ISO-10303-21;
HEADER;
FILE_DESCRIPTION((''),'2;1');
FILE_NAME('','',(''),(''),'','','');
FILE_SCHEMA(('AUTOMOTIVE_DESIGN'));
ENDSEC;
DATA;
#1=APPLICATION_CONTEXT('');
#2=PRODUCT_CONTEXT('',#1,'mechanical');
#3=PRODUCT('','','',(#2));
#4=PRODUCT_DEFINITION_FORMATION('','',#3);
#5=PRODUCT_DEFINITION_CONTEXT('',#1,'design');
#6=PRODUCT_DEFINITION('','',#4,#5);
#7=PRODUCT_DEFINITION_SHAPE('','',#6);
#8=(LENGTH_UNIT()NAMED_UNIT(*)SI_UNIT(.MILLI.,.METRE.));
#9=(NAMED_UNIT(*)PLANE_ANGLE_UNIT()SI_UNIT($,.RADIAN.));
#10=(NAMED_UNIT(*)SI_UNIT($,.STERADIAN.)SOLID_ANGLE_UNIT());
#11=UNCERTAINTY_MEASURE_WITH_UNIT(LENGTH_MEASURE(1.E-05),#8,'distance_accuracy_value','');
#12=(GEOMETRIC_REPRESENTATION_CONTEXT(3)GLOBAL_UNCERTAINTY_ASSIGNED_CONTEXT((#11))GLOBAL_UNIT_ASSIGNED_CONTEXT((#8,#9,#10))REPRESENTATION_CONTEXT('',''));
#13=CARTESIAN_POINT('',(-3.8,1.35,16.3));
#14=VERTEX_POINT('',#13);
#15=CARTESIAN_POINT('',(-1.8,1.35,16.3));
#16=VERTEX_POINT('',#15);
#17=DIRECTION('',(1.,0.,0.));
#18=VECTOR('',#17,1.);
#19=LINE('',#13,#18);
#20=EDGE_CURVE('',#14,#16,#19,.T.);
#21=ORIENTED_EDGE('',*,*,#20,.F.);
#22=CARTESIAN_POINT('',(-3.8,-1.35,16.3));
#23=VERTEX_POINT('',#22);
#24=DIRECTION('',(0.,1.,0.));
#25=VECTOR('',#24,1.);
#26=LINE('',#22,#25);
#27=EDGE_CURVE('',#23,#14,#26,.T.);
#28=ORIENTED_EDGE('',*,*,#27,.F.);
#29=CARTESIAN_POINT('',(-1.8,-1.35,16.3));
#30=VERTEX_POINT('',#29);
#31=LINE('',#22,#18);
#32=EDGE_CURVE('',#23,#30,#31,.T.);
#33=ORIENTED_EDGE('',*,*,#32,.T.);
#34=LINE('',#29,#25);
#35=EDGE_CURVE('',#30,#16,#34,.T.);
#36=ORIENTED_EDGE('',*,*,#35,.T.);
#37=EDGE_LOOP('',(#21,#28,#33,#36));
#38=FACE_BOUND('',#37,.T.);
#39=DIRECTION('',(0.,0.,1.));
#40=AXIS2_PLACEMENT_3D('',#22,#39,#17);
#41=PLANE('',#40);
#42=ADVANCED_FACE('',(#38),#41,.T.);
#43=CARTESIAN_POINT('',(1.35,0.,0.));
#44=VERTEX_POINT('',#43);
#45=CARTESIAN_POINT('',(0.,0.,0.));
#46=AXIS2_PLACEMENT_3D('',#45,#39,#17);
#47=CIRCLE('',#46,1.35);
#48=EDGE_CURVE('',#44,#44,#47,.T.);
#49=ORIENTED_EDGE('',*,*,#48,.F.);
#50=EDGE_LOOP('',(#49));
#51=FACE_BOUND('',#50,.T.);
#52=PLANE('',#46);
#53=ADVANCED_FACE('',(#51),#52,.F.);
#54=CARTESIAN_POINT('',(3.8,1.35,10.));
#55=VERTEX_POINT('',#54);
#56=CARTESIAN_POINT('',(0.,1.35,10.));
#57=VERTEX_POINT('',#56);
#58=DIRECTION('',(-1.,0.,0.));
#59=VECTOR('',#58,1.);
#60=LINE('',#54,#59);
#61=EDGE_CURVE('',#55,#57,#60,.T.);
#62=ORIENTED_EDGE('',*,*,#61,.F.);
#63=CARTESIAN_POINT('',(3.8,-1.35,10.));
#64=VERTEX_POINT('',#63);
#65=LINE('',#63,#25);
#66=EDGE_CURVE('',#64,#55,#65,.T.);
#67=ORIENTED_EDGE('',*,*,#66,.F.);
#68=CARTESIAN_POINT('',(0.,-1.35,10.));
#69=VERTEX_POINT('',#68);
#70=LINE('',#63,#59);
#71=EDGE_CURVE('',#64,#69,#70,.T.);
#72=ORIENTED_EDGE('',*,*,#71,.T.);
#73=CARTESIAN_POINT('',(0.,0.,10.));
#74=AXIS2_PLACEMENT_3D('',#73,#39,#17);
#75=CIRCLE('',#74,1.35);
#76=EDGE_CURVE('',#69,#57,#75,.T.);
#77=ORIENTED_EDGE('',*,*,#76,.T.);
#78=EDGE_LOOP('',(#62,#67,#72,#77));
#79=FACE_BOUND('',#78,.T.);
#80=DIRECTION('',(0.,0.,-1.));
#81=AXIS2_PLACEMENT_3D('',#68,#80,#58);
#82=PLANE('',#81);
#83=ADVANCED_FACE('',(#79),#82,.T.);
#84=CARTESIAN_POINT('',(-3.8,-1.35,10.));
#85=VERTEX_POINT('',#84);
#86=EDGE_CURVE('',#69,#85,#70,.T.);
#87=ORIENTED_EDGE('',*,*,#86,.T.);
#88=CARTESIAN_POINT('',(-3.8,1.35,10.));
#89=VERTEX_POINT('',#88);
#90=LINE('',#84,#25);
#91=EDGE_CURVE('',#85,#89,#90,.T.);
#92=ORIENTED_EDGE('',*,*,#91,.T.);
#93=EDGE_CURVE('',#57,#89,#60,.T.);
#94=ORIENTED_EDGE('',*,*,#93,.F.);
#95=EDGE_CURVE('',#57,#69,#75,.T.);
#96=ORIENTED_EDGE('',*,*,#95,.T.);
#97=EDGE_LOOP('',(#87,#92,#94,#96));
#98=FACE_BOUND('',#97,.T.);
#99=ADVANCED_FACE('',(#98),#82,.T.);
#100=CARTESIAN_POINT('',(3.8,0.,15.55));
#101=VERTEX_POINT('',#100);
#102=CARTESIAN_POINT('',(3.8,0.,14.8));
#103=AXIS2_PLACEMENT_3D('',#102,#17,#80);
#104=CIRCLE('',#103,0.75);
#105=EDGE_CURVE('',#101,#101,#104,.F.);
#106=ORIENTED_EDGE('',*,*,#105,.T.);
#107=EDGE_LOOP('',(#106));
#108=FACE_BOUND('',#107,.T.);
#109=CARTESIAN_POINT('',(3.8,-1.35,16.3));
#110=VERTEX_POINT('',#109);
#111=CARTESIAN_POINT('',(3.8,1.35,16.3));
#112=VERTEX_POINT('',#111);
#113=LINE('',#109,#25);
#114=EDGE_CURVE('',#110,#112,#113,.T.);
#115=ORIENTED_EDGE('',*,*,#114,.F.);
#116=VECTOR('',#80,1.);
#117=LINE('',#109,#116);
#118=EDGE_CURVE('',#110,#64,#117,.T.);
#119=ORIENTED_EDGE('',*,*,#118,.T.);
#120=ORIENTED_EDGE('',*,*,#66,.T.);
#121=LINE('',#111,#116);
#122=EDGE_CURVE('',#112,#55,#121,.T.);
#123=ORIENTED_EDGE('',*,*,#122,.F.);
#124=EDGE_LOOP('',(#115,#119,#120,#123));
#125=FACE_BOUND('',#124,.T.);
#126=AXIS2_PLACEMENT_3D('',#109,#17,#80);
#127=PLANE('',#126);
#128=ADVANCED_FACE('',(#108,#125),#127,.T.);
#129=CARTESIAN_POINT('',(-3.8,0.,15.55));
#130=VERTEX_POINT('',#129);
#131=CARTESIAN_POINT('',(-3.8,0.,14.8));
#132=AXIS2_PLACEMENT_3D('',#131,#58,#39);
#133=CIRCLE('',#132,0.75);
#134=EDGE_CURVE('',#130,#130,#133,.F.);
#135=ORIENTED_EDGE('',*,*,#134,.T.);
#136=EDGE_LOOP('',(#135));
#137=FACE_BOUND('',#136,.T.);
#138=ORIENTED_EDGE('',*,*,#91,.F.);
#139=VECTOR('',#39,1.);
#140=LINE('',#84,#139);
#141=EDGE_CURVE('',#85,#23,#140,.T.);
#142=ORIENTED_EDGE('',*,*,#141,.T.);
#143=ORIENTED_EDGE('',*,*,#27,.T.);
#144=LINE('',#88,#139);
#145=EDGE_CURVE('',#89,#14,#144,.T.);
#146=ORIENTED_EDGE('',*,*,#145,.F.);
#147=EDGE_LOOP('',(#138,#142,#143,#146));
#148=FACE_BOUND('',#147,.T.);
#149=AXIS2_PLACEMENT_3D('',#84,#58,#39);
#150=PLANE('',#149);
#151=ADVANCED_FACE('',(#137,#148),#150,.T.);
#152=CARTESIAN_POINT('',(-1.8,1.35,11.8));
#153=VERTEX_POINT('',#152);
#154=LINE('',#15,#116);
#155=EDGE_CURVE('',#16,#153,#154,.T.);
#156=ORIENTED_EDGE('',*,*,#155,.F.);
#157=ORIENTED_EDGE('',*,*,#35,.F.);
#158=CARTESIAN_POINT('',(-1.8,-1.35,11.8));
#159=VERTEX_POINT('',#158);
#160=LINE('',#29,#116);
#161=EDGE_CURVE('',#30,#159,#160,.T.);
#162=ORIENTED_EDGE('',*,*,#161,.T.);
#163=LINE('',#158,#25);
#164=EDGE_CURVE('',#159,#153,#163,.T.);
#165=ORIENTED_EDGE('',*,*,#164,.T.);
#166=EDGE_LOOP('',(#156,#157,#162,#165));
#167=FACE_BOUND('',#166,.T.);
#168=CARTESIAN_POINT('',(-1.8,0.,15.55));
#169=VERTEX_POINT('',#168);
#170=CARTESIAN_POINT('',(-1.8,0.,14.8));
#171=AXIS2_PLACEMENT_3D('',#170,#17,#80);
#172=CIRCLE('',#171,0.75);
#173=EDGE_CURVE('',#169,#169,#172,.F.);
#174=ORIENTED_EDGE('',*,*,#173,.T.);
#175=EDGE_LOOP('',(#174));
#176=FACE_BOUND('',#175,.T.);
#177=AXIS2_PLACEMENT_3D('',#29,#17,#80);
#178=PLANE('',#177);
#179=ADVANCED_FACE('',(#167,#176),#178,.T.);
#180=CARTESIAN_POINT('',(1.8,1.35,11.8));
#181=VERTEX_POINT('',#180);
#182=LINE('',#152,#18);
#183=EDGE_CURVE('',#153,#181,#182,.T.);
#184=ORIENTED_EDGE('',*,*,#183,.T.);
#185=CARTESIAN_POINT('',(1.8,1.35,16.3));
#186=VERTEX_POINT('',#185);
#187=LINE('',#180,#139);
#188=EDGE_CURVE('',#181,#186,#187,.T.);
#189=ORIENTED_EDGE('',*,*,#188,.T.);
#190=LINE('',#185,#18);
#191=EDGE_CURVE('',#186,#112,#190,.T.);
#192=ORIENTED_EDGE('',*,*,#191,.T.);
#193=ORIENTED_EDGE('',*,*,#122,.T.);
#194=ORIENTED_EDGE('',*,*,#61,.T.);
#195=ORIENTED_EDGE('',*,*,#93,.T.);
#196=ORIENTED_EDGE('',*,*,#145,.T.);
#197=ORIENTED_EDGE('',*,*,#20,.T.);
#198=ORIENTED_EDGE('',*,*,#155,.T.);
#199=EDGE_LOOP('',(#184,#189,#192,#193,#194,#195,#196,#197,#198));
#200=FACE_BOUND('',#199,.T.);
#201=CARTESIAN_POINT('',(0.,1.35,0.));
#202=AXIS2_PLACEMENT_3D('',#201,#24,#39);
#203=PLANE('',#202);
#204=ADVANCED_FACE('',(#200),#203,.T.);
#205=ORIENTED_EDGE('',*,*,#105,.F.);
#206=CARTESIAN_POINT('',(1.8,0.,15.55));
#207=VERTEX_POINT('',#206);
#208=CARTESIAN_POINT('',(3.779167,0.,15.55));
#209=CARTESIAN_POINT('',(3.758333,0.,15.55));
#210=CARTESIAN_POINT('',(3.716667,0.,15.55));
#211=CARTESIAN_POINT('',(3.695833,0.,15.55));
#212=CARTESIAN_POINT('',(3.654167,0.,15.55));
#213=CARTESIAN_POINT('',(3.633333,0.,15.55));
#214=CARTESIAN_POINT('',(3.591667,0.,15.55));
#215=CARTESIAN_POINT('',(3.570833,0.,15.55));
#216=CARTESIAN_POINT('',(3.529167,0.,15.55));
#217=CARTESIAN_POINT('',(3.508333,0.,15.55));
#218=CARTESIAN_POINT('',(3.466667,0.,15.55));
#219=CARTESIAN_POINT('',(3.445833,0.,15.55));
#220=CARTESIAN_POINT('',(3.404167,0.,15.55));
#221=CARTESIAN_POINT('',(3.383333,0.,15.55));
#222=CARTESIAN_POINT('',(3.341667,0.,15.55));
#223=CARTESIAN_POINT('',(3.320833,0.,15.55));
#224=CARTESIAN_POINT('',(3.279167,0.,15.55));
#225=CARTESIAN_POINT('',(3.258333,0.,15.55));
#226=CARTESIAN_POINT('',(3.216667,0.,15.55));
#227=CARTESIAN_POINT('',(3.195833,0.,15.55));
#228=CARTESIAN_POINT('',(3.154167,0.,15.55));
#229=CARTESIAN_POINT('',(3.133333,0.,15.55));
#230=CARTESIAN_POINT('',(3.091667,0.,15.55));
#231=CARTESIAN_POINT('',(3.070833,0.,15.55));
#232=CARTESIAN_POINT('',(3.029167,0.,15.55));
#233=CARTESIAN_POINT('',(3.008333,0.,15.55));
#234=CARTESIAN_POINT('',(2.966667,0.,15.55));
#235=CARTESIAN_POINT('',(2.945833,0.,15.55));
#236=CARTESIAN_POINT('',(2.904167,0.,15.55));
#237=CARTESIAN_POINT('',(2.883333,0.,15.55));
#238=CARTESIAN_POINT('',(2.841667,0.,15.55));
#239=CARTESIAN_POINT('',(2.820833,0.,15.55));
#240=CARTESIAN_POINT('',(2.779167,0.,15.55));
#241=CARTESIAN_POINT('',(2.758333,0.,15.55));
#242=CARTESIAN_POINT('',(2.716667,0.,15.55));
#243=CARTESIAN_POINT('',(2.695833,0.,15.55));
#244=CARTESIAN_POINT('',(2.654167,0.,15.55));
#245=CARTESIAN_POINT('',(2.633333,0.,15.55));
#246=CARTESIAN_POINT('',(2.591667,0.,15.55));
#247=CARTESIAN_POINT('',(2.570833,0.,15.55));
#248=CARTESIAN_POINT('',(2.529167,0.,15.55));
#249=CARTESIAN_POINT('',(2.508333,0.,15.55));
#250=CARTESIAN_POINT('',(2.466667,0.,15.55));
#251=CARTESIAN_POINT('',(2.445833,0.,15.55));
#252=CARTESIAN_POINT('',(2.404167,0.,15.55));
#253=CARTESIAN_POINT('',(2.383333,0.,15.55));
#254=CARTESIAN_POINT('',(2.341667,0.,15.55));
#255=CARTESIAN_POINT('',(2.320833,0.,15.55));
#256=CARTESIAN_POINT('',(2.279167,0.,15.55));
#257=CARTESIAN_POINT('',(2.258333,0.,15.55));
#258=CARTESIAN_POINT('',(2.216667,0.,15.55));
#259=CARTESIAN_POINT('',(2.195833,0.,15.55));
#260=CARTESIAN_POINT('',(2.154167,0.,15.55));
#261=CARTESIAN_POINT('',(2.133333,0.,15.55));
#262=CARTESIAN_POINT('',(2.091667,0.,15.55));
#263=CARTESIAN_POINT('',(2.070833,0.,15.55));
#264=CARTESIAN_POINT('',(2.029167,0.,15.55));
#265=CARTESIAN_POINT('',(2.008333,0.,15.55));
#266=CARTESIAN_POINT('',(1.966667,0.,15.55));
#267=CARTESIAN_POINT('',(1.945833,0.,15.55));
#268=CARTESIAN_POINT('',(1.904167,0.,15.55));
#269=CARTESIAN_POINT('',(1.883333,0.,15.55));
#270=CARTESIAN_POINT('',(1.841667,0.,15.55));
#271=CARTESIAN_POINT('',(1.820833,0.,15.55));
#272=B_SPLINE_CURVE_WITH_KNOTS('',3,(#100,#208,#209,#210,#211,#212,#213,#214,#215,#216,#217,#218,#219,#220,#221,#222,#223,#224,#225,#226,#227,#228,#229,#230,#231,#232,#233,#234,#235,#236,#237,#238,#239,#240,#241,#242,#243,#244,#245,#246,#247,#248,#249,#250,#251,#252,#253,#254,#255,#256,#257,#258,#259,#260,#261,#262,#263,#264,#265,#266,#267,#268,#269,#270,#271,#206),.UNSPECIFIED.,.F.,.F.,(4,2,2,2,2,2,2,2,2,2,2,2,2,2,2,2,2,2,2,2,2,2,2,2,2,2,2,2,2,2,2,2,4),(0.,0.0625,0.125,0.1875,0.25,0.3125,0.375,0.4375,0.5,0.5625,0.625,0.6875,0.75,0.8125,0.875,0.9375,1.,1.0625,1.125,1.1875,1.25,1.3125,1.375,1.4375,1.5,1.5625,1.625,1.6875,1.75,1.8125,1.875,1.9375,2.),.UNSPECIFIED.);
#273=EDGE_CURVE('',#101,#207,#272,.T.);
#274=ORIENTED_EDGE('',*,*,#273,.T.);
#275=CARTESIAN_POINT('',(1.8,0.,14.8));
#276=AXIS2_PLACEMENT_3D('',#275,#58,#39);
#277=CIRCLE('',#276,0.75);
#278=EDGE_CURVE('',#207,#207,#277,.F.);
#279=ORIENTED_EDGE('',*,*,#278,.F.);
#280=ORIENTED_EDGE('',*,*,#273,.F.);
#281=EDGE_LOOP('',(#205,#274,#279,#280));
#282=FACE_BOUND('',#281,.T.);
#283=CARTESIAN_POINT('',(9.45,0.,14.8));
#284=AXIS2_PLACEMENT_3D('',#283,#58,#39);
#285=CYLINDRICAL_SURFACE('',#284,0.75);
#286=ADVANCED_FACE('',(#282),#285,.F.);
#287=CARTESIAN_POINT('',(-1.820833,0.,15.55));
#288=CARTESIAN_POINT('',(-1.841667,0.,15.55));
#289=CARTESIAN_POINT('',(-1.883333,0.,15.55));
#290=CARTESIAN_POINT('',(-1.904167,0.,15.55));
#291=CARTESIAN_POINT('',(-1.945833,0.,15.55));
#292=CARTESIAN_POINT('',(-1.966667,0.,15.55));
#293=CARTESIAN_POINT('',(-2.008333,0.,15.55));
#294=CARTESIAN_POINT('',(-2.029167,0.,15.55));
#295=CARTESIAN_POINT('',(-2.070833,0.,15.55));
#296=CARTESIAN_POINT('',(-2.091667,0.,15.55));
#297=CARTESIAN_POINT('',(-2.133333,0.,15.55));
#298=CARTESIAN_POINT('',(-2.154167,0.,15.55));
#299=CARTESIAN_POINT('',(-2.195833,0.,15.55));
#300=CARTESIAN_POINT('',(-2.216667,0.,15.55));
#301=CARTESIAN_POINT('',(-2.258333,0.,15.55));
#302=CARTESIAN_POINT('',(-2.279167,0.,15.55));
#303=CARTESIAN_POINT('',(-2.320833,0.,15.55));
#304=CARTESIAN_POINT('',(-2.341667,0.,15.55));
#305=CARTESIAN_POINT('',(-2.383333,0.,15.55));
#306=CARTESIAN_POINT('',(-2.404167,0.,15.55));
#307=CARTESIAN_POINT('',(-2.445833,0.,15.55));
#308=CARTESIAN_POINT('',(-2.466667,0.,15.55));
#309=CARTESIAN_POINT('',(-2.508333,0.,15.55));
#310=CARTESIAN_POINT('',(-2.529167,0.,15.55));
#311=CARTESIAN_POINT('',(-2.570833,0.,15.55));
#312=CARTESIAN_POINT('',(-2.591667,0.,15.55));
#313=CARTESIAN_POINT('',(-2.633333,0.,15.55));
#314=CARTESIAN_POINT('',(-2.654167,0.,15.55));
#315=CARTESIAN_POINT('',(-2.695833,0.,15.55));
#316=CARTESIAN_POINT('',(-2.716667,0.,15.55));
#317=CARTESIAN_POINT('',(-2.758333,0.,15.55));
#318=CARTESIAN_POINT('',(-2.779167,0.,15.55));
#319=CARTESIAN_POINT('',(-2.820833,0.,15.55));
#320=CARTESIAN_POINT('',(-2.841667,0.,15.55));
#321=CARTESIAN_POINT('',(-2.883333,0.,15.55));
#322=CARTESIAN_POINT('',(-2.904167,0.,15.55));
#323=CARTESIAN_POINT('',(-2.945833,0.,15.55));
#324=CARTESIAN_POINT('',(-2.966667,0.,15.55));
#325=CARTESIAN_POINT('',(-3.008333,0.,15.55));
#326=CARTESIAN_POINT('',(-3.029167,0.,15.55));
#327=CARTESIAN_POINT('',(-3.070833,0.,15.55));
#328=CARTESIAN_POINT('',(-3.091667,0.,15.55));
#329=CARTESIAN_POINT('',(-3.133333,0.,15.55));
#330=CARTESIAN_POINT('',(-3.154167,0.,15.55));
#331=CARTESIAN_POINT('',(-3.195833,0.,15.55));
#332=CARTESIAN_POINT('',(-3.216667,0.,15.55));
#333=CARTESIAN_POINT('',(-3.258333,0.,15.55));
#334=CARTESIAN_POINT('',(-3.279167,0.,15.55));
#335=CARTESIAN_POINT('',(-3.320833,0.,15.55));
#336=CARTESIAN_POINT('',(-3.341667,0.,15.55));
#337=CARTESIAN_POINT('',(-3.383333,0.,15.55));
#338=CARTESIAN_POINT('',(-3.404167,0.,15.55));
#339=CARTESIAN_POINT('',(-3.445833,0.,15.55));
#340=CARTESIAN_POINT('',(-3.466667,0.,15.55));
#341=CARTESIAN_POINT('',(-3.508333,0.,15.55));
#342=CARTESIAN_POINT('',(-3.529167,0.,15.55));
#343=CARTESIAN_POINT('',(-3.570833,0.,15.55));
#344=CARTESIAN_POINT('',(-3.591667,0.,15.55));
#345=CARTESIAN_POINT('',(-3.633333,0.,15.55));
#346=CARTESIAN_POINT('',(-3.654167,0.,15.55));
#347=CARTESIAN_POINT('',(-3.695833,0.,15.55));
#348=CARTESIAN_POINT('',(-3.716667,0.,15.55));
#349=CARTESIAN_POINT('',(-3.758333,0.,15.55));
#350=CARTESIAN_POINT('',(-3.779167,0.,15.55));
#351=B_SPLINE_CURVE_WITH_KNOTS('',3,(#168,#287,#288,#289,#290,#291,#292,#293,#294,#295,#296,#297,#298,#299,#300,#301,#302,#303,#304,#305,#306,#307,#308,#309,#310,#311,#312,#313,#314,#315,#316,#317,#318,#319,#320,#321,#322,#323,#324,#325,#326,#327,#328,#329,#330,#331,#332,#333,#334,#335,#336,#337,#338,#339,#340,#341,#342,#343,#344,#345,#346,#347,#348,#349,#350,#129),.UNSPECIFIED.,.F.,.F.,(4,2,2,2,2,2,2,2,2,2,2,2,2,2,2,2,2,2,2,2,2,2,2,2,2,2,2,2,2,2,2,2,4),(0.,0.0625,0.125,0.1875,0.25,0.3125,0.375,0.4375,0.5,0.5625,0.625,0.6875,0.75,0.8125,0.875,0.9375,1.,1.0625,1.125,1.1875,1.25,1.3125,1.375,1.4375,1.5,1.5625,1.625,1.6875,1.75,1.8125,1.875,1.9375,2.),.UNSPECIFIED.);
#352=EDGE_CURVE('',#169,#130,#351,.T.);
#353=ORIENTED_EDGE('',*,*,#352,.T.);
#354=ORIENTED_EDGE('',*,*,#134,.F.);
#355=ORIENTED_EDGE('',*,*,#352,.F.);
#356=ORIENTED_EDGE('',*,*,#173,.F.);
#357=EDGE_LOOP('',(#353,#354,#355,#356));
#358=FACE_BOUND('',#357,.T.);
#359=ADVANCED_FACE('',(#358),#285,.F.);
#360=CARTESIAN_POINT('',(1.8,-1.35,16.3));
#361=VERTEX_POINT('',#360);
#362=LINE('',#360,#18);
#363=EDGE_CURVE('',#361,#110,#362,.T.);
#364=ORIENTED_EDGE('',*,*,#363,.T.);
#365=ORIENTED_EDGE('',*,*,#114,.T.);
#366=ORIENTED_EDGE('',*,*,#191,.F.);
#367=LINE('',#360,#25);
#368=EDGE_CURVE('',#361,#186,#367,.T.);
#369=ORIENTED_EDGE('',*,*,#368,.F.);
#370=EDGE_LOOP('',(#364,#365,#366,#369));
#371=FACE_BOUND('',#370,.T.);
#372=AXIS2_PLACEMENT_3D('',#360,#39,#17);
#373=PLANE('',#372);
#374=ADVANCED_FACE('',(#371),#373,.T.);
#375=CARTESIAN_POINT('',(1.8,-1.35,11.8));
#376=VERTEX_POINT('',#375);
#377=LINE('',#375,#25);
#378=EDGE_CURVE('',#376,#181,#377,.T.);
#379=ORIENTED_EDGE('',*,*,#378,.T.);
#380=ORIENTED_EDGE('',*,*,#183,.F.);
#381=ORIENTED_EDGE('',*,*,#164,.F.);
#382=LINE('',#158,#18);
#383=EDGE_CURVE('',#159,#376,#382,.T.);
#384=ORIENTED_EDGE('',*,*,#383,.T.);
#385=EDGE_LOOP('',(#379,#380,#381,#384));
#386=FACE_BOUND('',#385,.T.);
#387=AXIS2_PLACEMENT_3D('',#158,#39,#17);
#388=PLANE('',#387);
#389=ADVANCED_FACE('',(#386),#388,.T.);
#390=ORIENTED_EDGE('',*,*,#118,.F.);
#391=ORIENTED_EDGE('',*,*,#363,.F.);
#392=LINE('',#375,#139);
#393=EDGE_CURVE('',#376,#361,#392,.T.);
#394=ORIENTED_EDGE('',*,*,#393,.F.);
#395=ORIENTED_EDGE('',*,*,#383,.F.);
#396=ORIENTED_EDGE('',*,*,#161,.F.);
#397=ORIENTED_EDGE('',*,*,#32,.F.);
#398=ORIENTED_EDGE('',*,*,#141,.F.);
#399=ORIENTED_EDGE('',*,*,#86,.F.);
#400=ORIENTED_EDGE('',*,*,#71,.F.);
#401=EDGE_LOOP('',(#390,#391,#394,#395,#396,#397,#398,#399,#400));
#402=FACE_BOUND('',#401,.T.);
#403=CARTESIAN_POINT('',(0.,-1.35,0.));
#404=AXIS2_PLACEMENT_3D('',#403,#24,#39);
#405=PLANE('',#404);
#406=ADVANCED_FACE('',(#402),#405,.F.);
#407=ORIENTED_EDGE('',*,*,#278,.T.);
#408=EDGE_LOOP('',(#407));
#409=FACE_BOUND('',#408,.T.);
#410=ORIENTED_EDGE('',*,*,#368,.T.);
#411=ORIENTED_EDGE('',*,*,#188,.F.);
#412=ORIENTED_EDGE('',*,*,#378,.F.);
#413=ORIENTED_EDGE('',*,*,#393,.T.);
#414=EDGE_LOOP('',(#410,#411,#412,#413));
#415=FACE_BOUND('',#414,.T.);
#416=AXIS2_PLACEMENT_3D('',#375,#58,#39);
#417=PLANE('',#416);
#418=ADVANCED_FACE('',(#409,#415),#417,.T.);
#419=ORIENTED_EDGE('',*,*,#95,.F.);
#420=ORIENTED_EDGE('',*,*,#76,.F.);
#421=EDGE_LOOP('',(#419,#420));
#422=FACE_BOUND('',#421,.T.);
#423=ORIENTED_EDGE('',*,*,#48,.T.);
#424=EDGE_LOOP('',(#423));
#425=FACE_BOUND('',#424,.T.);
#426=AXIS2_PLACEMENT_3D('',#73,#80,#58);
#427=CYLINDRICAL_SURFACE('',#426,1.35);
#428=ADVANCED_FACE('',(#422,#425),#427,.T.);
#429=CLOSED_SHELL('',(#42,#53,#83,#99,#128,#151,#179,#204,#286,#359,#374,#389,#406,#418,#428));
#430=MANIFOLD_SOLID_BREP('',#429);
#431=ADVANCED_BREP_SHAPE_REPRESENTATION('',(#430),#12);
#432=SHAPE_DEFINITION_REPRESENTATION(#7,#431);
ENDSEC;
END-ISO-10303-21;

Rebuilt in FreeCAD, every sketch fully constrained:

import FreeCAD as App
import Part
import Sketcher


def add_polygon(sketch, points):
    """Adds a closed chain of lines whose ends are joined by coincident constraints."""
    first, n = sketch.GeometryCount, len(points)
    for a, b in zip(points, points[1:] + points[:1]):
        sketch.addGeometry(Part.LineSegment(App.Vector(*a, 0), App.Vector(*b, 0)), False)
    for i in range(n):
        sketch.addConstraint(Sketcher.Constraint("Coincident", first + i, 2, first + (i + 1) % n, 1))

doc = App.newDocument("Part")
body = doc.addObject("PartDesign::Body", "Body")

# Sketch on XY plane
sketch1 = body.newObject("Sketcher::SketchObject", "Sketch")
sketch1.AttachmentSupport = (doc.getObject("XY_Plane"), [""])
sketch1.MapMode = "FlatFace"
sketch1.addGeometry(Part.Circle(App.Vector(0, 0, 0), App.Vector(0, 0, 1), 1.4), False)
sketch1.addConstraint([
    Sketcher.Constraint("Coincident", 0, 3, -1, 1),
    Sketcher.Constraint("Diameter", 0, 2.7),
])
pad1 = body.newObject("PartDesign::Pad", "Pad")
pad1.Profile = sketch1
pad1.Length = 10

# Sketch on XZ plane
sketch2 = body.newObject("Sketcher::SketchObject", "Sketch001")
sketch2.AttachmentSupport = (doc.getObject("XZ_Plane"), [""])
sketch2.MapMode = "FlatFace"
add_polygon(sketch2, [(-3.8, 10), (-3.8, 16.3), (-1.8, 16.3), (-1.8, 11.8), (1.8, 11.8), (1.8, 16.3), (3.8, 16.3), (3.8, 10)])  # lines 0-7
sketch2.addConstraint([
    Sketcher.Constraint("Vertical", 0),
    Sketcher.Constraint("Horizontal", 1),
    Sketcher.Constraint("Vertical", 2),
    Sketcher.Constraint("Horizontal", 3),
    Sketcher.Constraint("Vertical", 4),
    Sketcher.Constraint("Horizontal", 5),
    Sketcher.Constraint("Vertical", 6),
    Sketcher.Constraint("Horizontal", 7),
    Sketcher.Constraint("Symmetric", 1, 2, 4, 2, -2),
    Sketcher.Constraint("Equal", 1, 5),
    Sketcher.Constraint("DistanceX", 1, 1, 1, 2, 2.0),
    Sketcher.Constraint("DistanceX", 3, 1, 3, 2, 3.6),
    Sketcher.Constraint("DistanceY", 0, 1, 0, 2, 6.3),
    Sketcher.Constraint("DistanceY", 2, 2, 2, 1, 4.5),
    Sketcher.Constraint("DistanceY", -1, 1, 6, 2, 10.0),
])
pad2 = body.newObject("PartDesign::Pad", "Pad001")
pad2.Profile = sketch2
pad2.Type = "TwoLengths"
pad2.Length = 1.35
pad2.Length2 = 1.35
pad2.Reversed = True

# Sketch on YZ plane
sketch3 = body.newObject("Sketcher::SketchObject", "Sketch002")
sketch3.AttachmentSupport = (doc.getObject("YZ_Plane"), [""])
sketch3.MapMode = "FlatFace"
sketch3.AttachmentOffset = App.Placement(App.Vector(0, 0, -1.8), App.Rotation())
sketch3.addGeometry(Part.Circle(App.Vector(0, 14.8, 0), App.Vector(0, 0, 1), 0.8), False)
sketch3.addConstraint([
    Sketcher.Constraint("PointOnObject", 0, 3, -2),
    Sketcher.Constraint("Diameter", 0, 1.5),
    Sketcher.Constraint("DistanceY", -1, 1, 0, 3, 14.8),
])
pocket1 = body.newObject("PartDesign::Pocket", "Pocket")
pocket1.Profile = sketch3
pocket1.Type = "ThroughAll"
pocket1.Midplane = True

doc.recompute()
